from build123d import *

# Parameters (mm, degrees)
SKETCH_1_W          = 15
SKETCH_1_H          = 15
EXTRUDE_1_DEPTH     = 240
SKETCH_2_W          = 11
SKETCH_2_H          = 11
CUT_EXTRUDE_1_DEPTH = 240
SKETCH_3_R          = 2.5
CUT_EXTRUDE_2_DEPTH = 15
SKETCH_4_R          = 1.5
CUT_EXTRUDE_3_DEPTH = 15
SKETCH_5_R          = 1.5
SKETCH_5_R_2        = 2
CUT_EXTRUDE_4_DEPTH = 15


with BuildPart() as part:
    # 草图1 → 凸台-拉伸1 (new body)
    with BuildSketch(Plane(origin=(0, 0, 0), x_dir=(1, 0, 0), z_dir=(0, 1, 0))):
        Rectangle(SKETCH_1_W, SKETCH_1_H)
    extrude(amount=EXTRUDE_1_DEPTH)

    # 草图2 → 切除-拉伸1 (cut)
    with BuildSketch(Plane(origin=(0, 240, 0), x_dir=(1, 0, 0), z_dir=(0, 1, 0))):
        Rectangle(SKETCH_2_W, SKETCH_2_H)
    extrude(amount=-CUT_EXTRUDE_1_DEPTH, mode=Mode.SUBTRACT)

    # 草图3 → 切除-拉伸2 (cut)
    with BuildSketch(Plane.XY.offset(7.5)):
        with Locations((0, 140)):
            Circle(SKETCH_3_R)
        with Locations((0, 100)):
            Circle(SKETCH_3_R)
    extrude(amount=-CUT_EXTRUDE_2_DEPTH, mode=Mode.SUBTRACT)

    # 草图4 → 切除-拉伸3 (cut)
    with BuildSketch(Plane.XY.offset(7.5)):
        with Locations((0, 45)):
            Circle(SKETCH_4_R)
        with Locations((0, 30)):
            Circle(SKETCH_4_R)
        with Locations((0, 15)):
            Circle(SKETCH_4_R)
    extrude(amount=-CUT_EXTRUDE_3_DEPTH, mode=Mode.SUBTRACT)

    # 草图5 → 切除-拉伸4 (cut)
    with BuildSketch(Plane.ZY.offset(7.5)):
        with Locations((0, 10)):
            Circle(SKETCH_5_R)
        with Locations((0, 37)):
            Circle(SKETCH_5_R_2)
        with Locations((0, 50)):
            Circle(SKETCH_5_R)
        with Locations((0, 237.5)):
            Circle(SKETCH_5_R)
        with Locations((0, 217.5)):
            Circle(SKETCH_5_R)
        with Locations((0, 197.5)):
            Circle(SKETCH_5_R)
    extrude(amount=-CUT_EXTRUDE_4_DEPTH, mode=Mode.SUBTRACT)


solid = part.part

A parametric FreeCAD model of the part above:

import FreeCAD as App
import Part
import Sketcher
from FreeCAD import Vector

doc = App.newDocument("Part")
params = doc.addObject("Spreadsheet::Sheet", "Params")
for row, (alias, value) in enumerate([
    ("sketch1_width", "15 mm"),
    ("pad1_length", "240 mm"),
    ("sketch2_width", "11 mm"),
    ("pocket1_length", "240 mm"),
    ("sketch3_diameter", "5 mm"),
    ("pocket2_length", "15 mm"),
    ("sketch4_diameter", "3 mm"),
    ("pocket3_length", "15 mm"),
    ("sketch5_diameter", "3 mm"),
    ("sketch5_diameter2", "4 mm"),
    ("pocket4_length", "15 mm"),
], start=1):
    params.set(f"A{row}", alias)
    params.set(f"B{row}", "=" + value)
    params.setAlias(f"B{row}", alias)

body = doc.addObject("PartDesign::Body", "Body")

# Sketch on XZ plane
sketch1 = doc.addObject("Sketcher::SketchObject", "Sketch")
body.addObject(sketch1)
sketch1.AttachmentSupport = (doc.XZ_Plane, [""])
sketch1.MapMode = "FlatFace"
sketch1.addGeometry([
    Part.LineSegment(Vector(-8, -8, 0), Vector(-8, 8, 0)),
    Part.LineSegment(Vector(-8, 8, 0), Vector(8, 8, 0)),
    Part.LineSegment(Vector(8, 8, 0), Vector(8, -8, 0)),
    Part.LineSegment(Vector(8, -8, 0), Vector(-8, -8, 0)),
], False)
sketch1.addConstraint([
    Sketcher.Constraint("Coincident", 0, 2, 1, 1),
    Sketcher.Constraint("Coincident", 1, 2, 2, 1),
    Sketcher.Constraint("Coincident", 2, 2, 3, 1),
    Sketcher.Constraint("Coincident", 3, 2, 0, 1),
    Sketcher.Constraint("Vertical", 0),
    Sketcher.Constraint("Horizontal", 1),
    Sketcher.Constraint("Vertical", 2),
    Sketcher.Constraint("Horizontal", 3),
    Sketcher.Constraint("Symmetric", 0, 2, 2, 2, -1, 1),
    Sketcher.Constraint("Equal", 3, 0),
    Sketcher.Constraint("DistanceX", 1, 1, 1, 2, 15.0),
])
sketch1.setExpression("Constraints[10]", "Params.sketch1_width")
pad1 = doc.addObject("PartDesign::Pad", "Pad")
body.addObject(pad1)
pad1.Profile = sketch1
pad1.setExpression("Length", "Params.pad1_length")
pad1.Reversed = True

# Sketch on XZ plane
sketch2 = doc.addObject("Sketcher::SketchObject", "Sketch001")
body.addObject(sketch2)
sketch2.AttachmentSupport = (doc.XZ_Plane, [""])
sketch2.MapMode = "FlatFace"
sketch2.AttachmentOffset = App.Placement(Vector(0, 0, -240), App.Rotation())
sketch2.addGeometry([
    Part.LineSegment(Vector(-6, -6, 0), Vector(-6, 6, 0)),
    Part.LineSegment(Vector(-6, 6, 0), Vector(6, 6, 0)),
    Part.LineSegment(Vector(6, 6, 0), Vector(6, -6, 0)),
    Part.LineSegment(Vector(6, -6, 0), Vector(-6, -6, 0)),
], False)
sketch2.addConstraint([
    Sketcher.Constraint("Coincident", 0, 2, 1, 1),
    Sketcher.Constraint("Coincident", 1, 2, 2, 1),
    Sketcher.Constraint("Coincident", 2, 2, 3, 1),
    Sketcher.Constraint("Coincident", 3, 2, 0, 1),
    Sketcher.Constraint("Vertical", 0),
    Sketcher.Constraint("Horizontal", 1),
    Sketcher.Constraint("Vertical", 2),
    Sketcher.Constraint("Horizontal", 3),
    Sketcher.Constraint("Symmetric", 0, 2, 2, 2, -1, 1),
    Sketcher.Constraint("Equal", 3, 0),
    Sketcher.Constraint("DistanceX", 1, 1, 1, 2, 11.0),
])
sketch2.setExpression("Constraints[10]", "Params.sketch2_width")
pocket1 = doc.addObject("PartDesign::Pocket", "Pocket")
body.addObject(pocket1)
pocket1.Profile = sketch2
pocket1.setExpression("Length", "Params.pocket1_length")
pocket1.Reversed = True

# Sketch on XY plane
sketch3 = doc.addObject("Sketcher::SketchObject", "Sketch002")
body.addObject(sketch3)
sketch3.AttachmentSupport = (doc.XY_Plane, [""])
sketch3.MapMode = "FlatFace"
sketch3.AttachmentOffset = App.Placement(Vector(0, 0, 7.5), App.Rotation())
sketch3.addGeometry([
    Part.Circle(Vector(0, 140, 0), Vector(0, 0, 1), 2.5),
    Part.Circle(Vector(0, 100, 0), Vector(0, 0, 1), 2.5),
], False)
sketch3.addConstraint([
    Sketcher.Constraint("Equal", 0, 1),
    Sketcher.Constraint("PointOnObject", 0, 3, -2),
    Sketcher.Constraint("PointOnObject", 1, 3, -2),
    Sketcher.Constraint("Diameter", 0, 5.0),
    Sketcher.Constraint("DistanceY", -1, 1, 0, 3, 140.0),
    Sketcher.Constraint("DistanceY", -1, 1, 1, 3, 100.0),
])
sketch3.setExpression("Constraints[3]", "Params.sketch3_diameter")
pocket2 = doc.addObject("PartDesign::Pocket", "Pocket001")
body.addObject(pocket2)
pocket2.Profile = sketch3
pocket2.setExpression("Length", "Params.pocket2_length")

# Sketch on XY plane
sketch4 = doc.addObject("Sketcher::SketchObject", "Sketch003")
body.addObject(sketch4)
sketch4.AttachmentSupport = (doc.XY_Plane, [""])
sketch4.MapMode = "FlatFace"
sketch4.AttachmentOffset = App.Placement(Vector(0, 0, 7.5), App.Rotation())
sketch4.addGeometry([
    Part.Circle(Vector(0, 45, 0), Vector(0, 0, 1), 1.5),
    Part.Circle(Vector(0, 30, 0), Vector(0, 0, 1), 1.5),
    Part.Circle(Vector(0, 15, 0), Vector(0, 0, 1), 1.5),
], False)
sketch4.addConstraint([
    Sketcher.Constraint("Equal", 0, 1),
    Sketcher.Constraint("Equal", 1, 2),
    Sketcher.Constraint("PointOnObject", 0, 3, -2),
    Sketcher.Constraint("PointOnObject", 1, 3, -2),
    Sketcher.Constraint("PointOnObject", 2, 3, -2),
    Sketcher.Constraint("Diameter", 0, 3.0),
    Sketcher.Constraint("DistanceY", -1, 1, 0, 3, 45.0),
    Sketcher.Constraint("DistanceY", -1, 1, 1, 3, 30.0),
    Sketcher.Constraint("DistanceY", -1, 1, 2, 3, 15.0),
])
sketch4.setExpression("Constraints[5]", "Params.sketch4_diameter")
pocket3 = doc.addObject("PartDesign::Pocket", "Pocket002")
body.addObject(pocket3)
pocket3.Profile = sketch4
pocket3.setExpression("Length", "Params.pocket3_length")

# Sketch on YZ plane
sketch5 = doc.addObject("Sketcher::SketchObject", "Sketch004")
body.addObject(sketch5)
sketch5.AttachmentSupport = (doc.YZ_Plane, [""])
sketch5.MapMode = "FlatFace"
sketch5.AttachmentOffset = App.Placement(Vector(0, 0, -7.5), App.Rotation())
sketch5.addGeometry([
    Part.Circle(Vector(10, 0, 0), Vector(0, 0, 1), 1.5),  # 0
    Part.Circle(Vector(37, 0, 0), Vector(0, 0, 1), 2),  # 1
    Part.Circle(Vector(50, 0, 0), Vector(0, 0, 1), 1.5),  # 2
    Part.Circle(Vector(237.5, 0, 0), Vector(0, 0, 1), 1.5),  # 3
    Part.Circle(Vector(217.5, 0, 0), Vector(0, 0, 1), 1.5),  # 4
    Part.Circle(Vector(197.5, 0, 0), Vector(0, 0, 1), 1.5),  # 5
], False)
sketch5.addConstraint([
    Sketcher.Constraint("Equal", 0, 2),
    Sketcher.Constraint("Equal", 2, 3),
    Sketcher.Constraint("Equal", 3, 4),
    Sketcher.Constraint("Equal", 4, 5),
    Sketcher.Constraint("PointOnObject", 0, 3, -1),
    Sketcher.Constraint("PointOnObject", 1, 3, -1),
    Sketcher.Constraint("PointOnObject", 2, 3, -1),
    Sketcher.Constraint("PointOnObject", 3, 3, -1),
    Sketcher.Constraint("PointOnObject", 4, 3, -1),
    Sketcher.Constraint("PointOnObject", 5, 3, -1),
    Sketcher.Constraint("Diameter", 0, 3.0),
    Sketcher.Constraint("Diameter", 1, 4.0),
    Sketcher.Constraint("DistanceX", -1, 1, 0, 3, 10.0),
    Sketcher.Constraint("DistanceX", -1, 1, 1, 3, 37.0),
    Sketcher.Constraint("DistanceX", -1, 1, 2, 3, 50.0),
    Sketcher.Constraint("DistanceX", 4, 3, 3, 3, 20.0),
    Sketcher.Constraint("DistanceX", 5, 3, 4, 3, 20.0),
    Sketcher.Constraint("DistanceX", -1, 1, 3, 3, 237.5),
])
sketch5.setExpression("Constraints[10]", "Params.sketch5_diameter")
sketch5.setExpression("Constraints[11]", "Params.sketch5_diameter2")
pocket4 = doc.addObject("PartDesign::Pocket", "Pocket003")
body.addObject(pocket4)
pocket4.Profile = sketch5
pocket4.setExpression("Length", "Params.pocket4_length")
pocket4.Reversed = True

doc.recompute()
